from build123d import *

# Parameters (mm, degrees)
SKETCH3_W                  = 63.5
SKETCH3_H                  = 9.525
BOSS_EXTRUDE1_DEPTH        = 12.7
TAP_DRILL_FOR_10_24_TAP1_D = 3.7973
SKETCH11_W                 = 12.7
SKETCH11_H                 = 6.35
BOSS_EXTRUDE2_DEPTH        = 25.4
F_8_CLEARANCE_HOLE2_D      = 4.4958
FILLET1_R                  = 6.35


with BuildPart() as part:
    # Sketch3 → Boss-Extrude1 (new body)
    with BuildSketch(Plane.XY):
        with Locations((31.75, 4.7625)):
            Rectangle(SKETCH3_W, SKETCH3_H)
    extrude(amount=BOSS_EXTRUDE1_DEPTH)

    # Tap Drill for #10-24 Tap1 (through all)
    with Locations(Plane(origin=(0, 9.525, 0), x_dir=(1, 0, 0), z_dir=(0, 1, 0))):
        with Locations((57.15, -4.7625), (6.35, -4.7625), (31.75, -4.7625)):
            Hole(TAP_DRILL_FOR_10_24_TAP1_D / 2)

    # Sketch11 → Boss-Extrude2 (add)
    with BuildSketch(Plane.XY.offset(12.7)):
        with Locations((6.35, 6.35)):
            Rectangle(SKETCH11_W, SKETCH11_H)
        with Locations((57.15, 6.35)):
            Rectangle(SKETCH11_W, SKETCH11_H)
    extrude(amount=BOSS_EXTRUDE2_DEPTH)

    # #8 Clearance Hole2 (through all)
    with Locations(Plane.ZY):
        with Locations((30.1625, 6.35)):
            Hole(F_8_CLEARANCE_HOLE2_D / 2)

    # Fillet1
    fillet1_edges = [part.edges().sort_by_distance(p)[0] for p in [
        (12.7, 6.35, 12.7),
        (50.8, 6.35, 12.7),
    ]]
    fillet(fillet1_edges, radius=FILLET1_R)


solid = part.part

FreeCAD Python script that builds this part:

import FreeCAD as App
import Part
import Sketcher
from FreeCAD import Vector
Q = App.Units.Quantity


def edges_at(feature, points):
    """Names of the edges that pass closest to the given points."""
    edges = feature.Shape.Edges
    near = lambda p: min(range(len(edges)), key=lambda i: edges[i].distToShape(Part.Vertex(*p))[0])
    return sorted({f"Edge{near(p) + 1}" for p in points})


def add_polygon(sketch, points):
    """Adds a closed chain of lines whose ends are joined by coincident constraints."""
    first, n = sketch.GeometryCount, len(points)
    for a, b in zip(points, points[1:] + points[:1]):
        sketch.addGeometry(Part.LineSegment(App.Vector(*a, 0), App.Vector(*b, 0)), False)
    for i in range(n):
        sketch.addConstraint(Sketcher.Constraint("Coincident", first + i, 2, first + (i + 1) % n, 1))

doc = App.newDocument("Part")
body = doc.addObject("PartDesign::Body", "Body")

sketch1 = doc.addObject("Sketcher::SketchObject", "Sketch")
body.addObject(sketch1)
sketch1.AttachmentSupport = (doc.XY_Plane, [""])
sketch1.MapMode = "FlatFace"
add_polygon(sketch1, [(0, 10), (0, 0), (64, 0), (64, 10)])
sketch1.addConstraint(Sketcher.Constraint("Vertical", 0))
sketch1.addConstraint(Sketcher.Constraint("Horizontal", 1))
sketch1.addConstraint(Sketcher.Constraint("Vertical", 2))
sketch1.addConstraint(Sketcher.Constraint("Horizontal", 3))
sketch1.addConstraint(Sketcher.Constraint("Coincident", 0, 2, -1, 1))
sketch1.addConstraint(Sketcher.Constraint("DistanceX", 1, 1, 1, 2, Q("2.5 in")))
sketch1.addConstraint(Sketcher.Constraint("DistanceY", 0, 2, 0, 1, Q("0.375 in")))
pad1 = doc.addObject("PartDesign::Pad", "Pad")
body.addObject(pad1)
pad1.Profile = sketch1
pad1.Length = Q("0.5 in")

sketch2 = doc.addObject("Sketcher::SketchObject", "Sketch001")
body.addObject(sketch2)
sketch2.AttachmentSupport = (doc.XZ_Plane, [""])
sketch2.MapMode = "FlatFace"
sketch2.AttachmentOffset = App.Placement(Vector(0, 0, -0.375 * 25.4), App.Rotation())
sketch2.addGeometry(Part.Circle(Vector(57.1, 4.8, 0), Vector(0, 0, 1), 1.9), False)
sketch2.addGeometry(Part.Circle(Vector(6.3, 4.8, 0), Vector(0, 0, 1), 1.9), False)
sketch2.addGeometry(Part.Circle(Vector(31.8, 4.8, 0), Vector(0, 0, 1), 1.9), False)
sketch2.addConstraint(Sketcher.Constraint("Equal", 0, 1))
sketch2.addConstraint(Sketcher.Constraint("Equal", 1, 2))
sketch2.addConstraint(Sketcher.Constraint("Horizontal", 0, 3, 1, 3))
sketch2.addConstraint(Sketcher.Constraint("Horizontal", 1, 3, 2, 3))
sketch2.addConstraint(Sketcher.Constraint("DistanceX", 1, 3, 0, 3, Q("2 in")))
sketch2.addConstraint(Sketcher.Constraint("DistanceX", 2, 3, 0, 3, Q("1 in")))
sketch2.addConstraint(Sketcher.Constraint("Diameter", 0, Q("0.1495 in")))
sketch2.addConstraint(Sketcher.Constraint("DistanceX", -1, 1, 0, 3, Q("2.25 in")))
sketch2.addConstraint(Sketcher.Constraint("DistanceY", -1, 1, 0, 3, Q("0.1875 in")))
doc.recompute()
hole = doc.addObject("PartDesign::Hole", "Hole")
body.addObject(hole)
hole.Profile = sketch2
hole.ThreadType = "None"
hole.Diameter = Q("0.1495 in")
hole.DepthType = "ThroughAll"
hole.Reversed = True

sketch3 = doc.addObject("Sketcher::SketchObject", "Sketch002")
body.addObject(sketch3)
sketch3.AttachmentSupport = (doc.XY_Plane, [""])
sketch3.MapMode = "FlatFace"
sketch3.AttachmentOffset = App.Placement(Vector(0, 0, 0.5 * 25.4), App.Rotation())
add_polygon(sketch3, [(0, 10), (0, 3), (13, 3), (13, 10)])
add_polygon(sketch3, [(51, 10), (51, 3), (64, 3), (64, 10)])
sketch3.addConstraint(Sketcher.Constraint("Vertical", 0))
sketch3.addConstraint(Sketcher.Constraint("Horizontal", 1))
sketch3.addConstraint(Sketcher.Constraint("Vertical", 2))
sketch3.addConstraint(Sketcher.Constraint("Horizontal", 3))
sketch3.addConstraint(Sketcher.Constraint("Vertical", 4))
sketch3.addConstraint(Sketcher.Constraint("Horizontal", 5))
sketch3.addConstraint(Sketcher.Constraint("Vertical", 6))
sketch3.addConstraint(Sketcher.Constraint("Horizontal", 7))
sketch3.addConstraint(Sketcher.Constraint("PointOnObject", 0, 2, -2))
sketch3.addConstraint(Sketcher.Constraint("Horizontal", 1, 2, 4, 2))
sketch3.addConstraint(Sketcher.Constraint("Horizontal", 3, 2, 6, 2))
sketch3.addConstraint(Sketcher.Constraint("Equal", 3, 5))
sketch3.addConstraint(Sketcher.Constraint("DistanceX", 1, 1, 1, 2, Q("0.5 in")))
sketch3.addConstraint(Sketcher.Constraint("DistanceX", -1, 1, 4, 2, Q("2 in")))
sketch3.addConstraint(Sketcher.Constraint("DistanceY", 0, 2, 0, 1, Q("0.25 in")))
sketch3.addConstraint(Sketcher.Constraint("DistanceY", -1, 1, 0, 2, Q("0.125 in")))
pad2 = doc.addObject("PartDesign::Pad", "Pad001")
body.addObject(pad2)
pad2.Profile = sketch3
pad2.Length = Q("1 in")

sketch4 = doc.addObject("Sketcher::SketchObject", "Sketch003")
body.addObject(sketch4)
sketch4.AttachmentSupport = (doc.YZ_Plane, [""])
sketch4.MapMode = "FlatFace"
sketch4.addGeometry(Part.Circle(Vector(6.3, 30.2, 0), Vector(0, 0, 1), 2.2), False)
sketch4.addConstraint(Sketcher.Constraint("Diameter", 0, Q("0.177 in")))
sketch4.addConstraint(Sketcher.Constraint("DistanceX", -1, 1, 0, 3, Q("0.25 in")))
sketch4.addConstraint(Sketcher.Constraint("DistanceY", -1, 1, 0, 3, Q("1.1875 in")))
doc.recompute()
hole2 = doc.addObject("PartDesign::Hole", "Hole001")
body.addObject(hole2)
hole2.Profile = sketch4
hole2.ThreadType = "None"
hole2.Diameter = Q("0.177 in")
hole2.DepthType = "ThroughAll"
hole2.Reversed = True
doc.recompute()

fillet = doc.addObject("PartDesign::Fillet", "Fillet")
body.addObject(fillet)
fillet.Base = (hole2, edges_at(hole2, [(12.7, 6.35, 12.7), (50.8, 6.35, 12.7)]))
fillet.Radius = Q("0.25 in")

doc.recompute()
